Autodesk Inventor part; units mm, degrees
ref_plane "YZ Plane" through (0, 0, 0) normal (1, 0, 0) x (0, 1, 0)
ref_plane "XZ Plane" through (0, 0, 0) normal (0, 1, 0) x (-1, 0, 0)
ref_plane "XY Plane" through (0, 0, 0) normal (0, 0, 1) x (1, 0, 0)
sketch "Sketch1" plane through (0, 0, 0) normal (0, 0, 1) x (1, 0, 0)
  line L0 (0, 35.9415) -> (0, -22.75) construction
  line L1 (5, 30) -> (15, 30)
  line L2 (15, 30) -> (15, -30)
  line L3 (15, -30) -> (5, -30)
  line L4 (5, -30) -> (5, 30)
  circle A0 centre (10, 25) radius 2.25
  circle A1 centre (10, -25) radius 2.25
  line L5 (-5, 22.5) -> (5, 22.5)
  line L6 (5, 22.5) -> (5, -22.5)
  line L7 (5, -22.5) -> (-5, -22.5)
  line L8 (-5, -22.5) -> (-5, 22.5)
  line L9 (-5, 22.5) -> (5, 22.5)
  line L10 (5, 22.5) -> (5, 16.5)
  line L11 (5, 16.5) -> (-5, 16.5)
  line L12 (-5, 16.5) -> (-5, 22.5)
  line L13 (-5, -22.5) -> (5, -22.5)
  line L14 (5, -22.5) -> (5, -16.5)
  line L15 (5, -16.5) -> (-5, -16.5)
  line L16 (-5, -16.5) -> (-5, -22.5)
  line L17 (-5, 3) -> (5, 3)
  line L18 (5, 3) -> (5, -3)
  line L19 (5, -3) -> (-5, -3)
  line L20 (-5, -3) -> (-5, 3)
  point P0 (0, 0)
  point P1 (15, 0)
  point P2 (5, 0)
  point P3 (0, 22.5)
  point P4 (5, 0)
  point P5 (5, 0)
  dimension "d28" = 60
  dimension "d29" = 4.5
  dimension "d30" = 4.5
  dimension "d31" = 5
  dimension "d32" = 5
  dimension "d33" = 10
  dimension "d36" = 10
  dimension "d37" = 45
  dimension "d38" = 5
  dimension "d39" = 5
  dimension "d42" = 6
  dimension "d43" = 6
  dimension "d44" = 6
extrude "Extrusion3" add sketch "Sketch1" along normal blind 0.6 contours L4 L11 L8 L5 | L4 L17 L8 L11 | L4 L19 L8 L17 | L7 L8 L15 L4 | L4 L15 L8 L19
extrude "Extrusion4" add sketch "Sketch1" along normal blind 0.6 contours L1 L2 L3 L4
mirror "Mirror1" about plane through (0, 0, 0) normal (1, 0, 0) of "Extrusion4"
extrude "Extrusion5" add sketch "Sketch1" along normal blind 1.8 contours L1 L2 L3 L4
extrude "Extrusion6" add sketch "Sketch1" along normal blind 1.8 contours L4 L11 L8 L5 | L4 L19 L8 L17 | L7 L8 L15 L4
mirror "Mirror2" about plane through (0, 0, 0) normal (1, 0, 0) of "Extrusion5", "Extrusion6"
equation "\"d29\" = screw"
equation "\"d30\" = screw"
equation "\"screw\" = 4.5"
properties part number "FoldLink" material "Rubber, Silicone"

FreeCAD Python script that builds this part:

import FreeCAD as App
import Part
import Sketcher

V = App.Vector


def add_polygon(sketch, points):
    """Adds a closed chain of lines whose ends are joined by coincident constraints."""
    first, n = sketch.GeometryCount, len(points)
    for a, b in zip(points, points[1:] + points[:1]):
        sketch.addGeometry(Part.LineSegment(App.Vector(*a, 0), App.Vector(*b, 0)), False)
    for i in range(n):
        sketch.addConstraint(Sketcher.Constraint("Coincident", first + i, 2, first + (i + 1) % n, 1))

doc = App.newDocument("Part")
body = doc.addObject("PartDesign::Body", "Body")

sketch1 = doc.addObject("Sketcher::SketchObject", "Sketch")
body.addObject(sketch1)
sketch1.AttachmentSupport = (doc.XY_Plane, [""])
sketch1.MapMode = "FlatFace"
add_polygon(sketch1, [(5, 22), (-5, 22), (-5, -22), (5, -22)])
sketch1.addConstraint([
    Sketcher.Constraint("Horizontal", 0),
    Sketcher.Constraint("Vertical", 1),
    Sketcher.Constraint("Horizontal", 2),
    Sketcher.Constraint("Vertical", 3),
    Sketcher.Constraint("Symmetric", 0, 2, 2, 2, -1, 1),
    Sketcher.Constraint("DistanceX", 0, 2, 0, 1, 10.0),
    Sketcher.Constraint("DistanceY", 1, 2, 1, 1, 45.0),
])
pad1 = doc.addObject("PartDesign::Pad", "Pad")
body.addObject(pad1)
pad1.Profile = sketch1
pad1.Length = 0.6

sketch2 = doc.addObject("Sketcher::SketchObject", "Sketch001")
body.addObject(sketch2)
sketch2.AttachmentSupport = (doc.XY_Plane, [""])
sketch2.MapMode = "FlatFace"
add_polygon(sketch2, [(15, 30), (5, 30), (5, -30), (15, -30)])
sketch2.addGeometry(Part.Circle(V(10, -25, 0), V(0, 0, 1), 2.2), False)
sketch2.addGeometry(Part.Circle(V(10, 25, 0), V(0, 0, 1), 2.2), False)
sketch2.addConstraint([
    Sketcher.Constraint("Horizontal", 0),
    Sketcher.Constraint("Vertical", 1),
    Sketcher.Constraint("Horizontal", 2),
    Sketcher.Constraint("Vertical", 3),
    Sketcher.Constraint("Equal", 4, 5),
    Sketcher.Constraint("Symmetric", 4, 3, 5, 3, -1),
    Sketcher.Constraint("Diameter", 4, 4.5),
    Sketcher.Constraint("DistanceX", 0, 2, 0, 1, 10.0),
    Sketcher.Constraint("DistanceY", 1, 2, 1, 1, 60.0),
    Sketcher.Constraint("DistanceX", -1, 1, 4, 3, 10.0),
    Sketcher.Constraint("DistanceX", -1, 1, 0, 2, 5.0),
    Sketcher.Constraint("DistanceY", 5, 3, 0, 2, 5.0),
    Sketcher.Constraint("DistanceY", 1, 2, 4, 3, 5.0),
])
pad2 = doc.addObject("PartDesign::Pad", "Pad001")
body.addObject(pad2)
pad2.Profile = sketch2
pad2.Length = 0.6
doc.recompute()

mirrored = doc.addObject("PartDesign::Mirrored", "Mirrored")
body.addObject(mirrored)
mirrored.Originals = [pad2]
mirrored.MirrorPlane = (doc.YZ_Plane, [""])
body.Tip = mirrored

sketch3 = doc.addObject("Sketcher::SketchObject", "Sketch002")
body.addObject(sketch3)
sketch3.AttachmentSupport = (doc.XY_Plane, [""])
sketch3.MapMode = "FlatFace"
add_polygon(sketch3, [(15, 30), (5, 30), (5, -30), (15, -30)])
sketch3.addGeometry(Part.Circle(V(10, -25, 0), V(0, 0, 1), 2.2), False)
sketch3.addGeometry(Part.Circle(V(10, 25, 0), V(0, 0, 1), 2.2), False)
sketch3.addConstraint([
    Sketcher.Constraint("Horizontal", 0),
    Sketcher.Constraint("Vertical", 1),
    Sketcher.Constraint("Horizontal", 2),
    Sketcher.Constraint("Vertical", 3),
    Sketcher.Constraint("Equal", 4, 5),
    Sketcher.Constraint("Symmetric", 4, 3, 5, 3, -1),
    Sketcher.Constraint("Diameter", 4, 4.5),
    Sketcher.Constraint("DistanceX", 0, 2, 0, 1, 10.0),
    Sketcher.Constraint("DistanceY", 1, 2, 1, 1, 60.0),
    Sketcher.Constraint("DistanceX", -1, 1, 4, 3, 10.0),
    Sketcher.Constraint("DistanceX", -1, 1, 0, 2, 5.0),
    Sketcher.Constraint("DistanceY", 5, 3, 0, 2, 5.0),
    Sketcher.Constraint("DistanceY", 1, 2, 4, 3, 5.0),
])
pad3 = doc.addObject("PartDesign::Pad", "Pad002")
body.addObject(pad3)
pad3.Profile = sketch3
pad3.Length = 1.8

sketch4 = doc.addObject("Sketcher::SketchObject", "Sketch003")
body.addObject(sketch4)
sketch4.AttachmentSupport = (doc.XY_Plane, [""])
sketch4.MapMode = "FlatFace"
add_polygon(sketch4, [(5, 16), (5, 22), (-5, 22), (-5, 16)])
add_polygon(sketch4, [(5, -3), (5, 3), (-5, 3), (-5, -3)])
add_polygon(sketch4, [(-5, -22), (5, -22), (5, -16), (-5, -16)])
sketch4.addConstraint([
    Sketcher.Constraint("Vertical", 0),
    Sketcher.Constraint("Horizontal", 1),
    Sketcher.Constraint("Vertical", 2),
    Sketcher.Constraint("Horizontal", 3),
    Sketcher.Constraint("Vertical", 4),
    Sketcher.Constraint("Horizontal", 5),
    Sketcher.Constraint("Vertical", 6),
    Sketcher.Constraint("Horizontal", 7),
    Sketcher.Constraint("Horizontal", 8),
    Sketcher.Constraint("Vertical", 9),
    Sketcher.Constraint("Horizontal", 10),
    Sketcher.Constraint("Vertical", 11),
    Sketcher.Constraint("Symmetric", 4, 2, 6, 2, -1, 1),
    Sketcher.Constraint("Symmetric", 1, 2, 8, 2, -1, 1),
    Sketcher.Constraint("Symmetric", 3, 2, 10, 2, -1, 1),
    Sketcher.Constraint("Vertical", 3, 2, 4, 2),
    Sketcher.Constraint("Vertical", 2, 2, 5, 2),
    Sketcher.Constraint("Equal", 2, 4),
    Sketcher.Constraint("DistanceX", 1, 2, 1, 1, 10.0),
    Sketcher.Constraint("DistanceY", 0, 1, 0, 2, 6.0),
    Sketcher.Constraint("DistanceY", 8, 2, 3, 2, 39.0),
])
pad4 = doc.addObject("PartDesign::Pad", "Pad003")
body.addObject(pad4)
pad4.Profile = sketch4
pad4.Length = 1.8
doc.recompute()

mirrored2 = doc.addObject("PartDesign::Mirrored", "Mirrored001")
body.addObject(mirrored2)
mirrored2.Originals = [pad3, pad4]
mirrored2.MirrorPlane = (doc.YZ_Plane, [""])
body.Tip = mirrored2

doc.recompute()
